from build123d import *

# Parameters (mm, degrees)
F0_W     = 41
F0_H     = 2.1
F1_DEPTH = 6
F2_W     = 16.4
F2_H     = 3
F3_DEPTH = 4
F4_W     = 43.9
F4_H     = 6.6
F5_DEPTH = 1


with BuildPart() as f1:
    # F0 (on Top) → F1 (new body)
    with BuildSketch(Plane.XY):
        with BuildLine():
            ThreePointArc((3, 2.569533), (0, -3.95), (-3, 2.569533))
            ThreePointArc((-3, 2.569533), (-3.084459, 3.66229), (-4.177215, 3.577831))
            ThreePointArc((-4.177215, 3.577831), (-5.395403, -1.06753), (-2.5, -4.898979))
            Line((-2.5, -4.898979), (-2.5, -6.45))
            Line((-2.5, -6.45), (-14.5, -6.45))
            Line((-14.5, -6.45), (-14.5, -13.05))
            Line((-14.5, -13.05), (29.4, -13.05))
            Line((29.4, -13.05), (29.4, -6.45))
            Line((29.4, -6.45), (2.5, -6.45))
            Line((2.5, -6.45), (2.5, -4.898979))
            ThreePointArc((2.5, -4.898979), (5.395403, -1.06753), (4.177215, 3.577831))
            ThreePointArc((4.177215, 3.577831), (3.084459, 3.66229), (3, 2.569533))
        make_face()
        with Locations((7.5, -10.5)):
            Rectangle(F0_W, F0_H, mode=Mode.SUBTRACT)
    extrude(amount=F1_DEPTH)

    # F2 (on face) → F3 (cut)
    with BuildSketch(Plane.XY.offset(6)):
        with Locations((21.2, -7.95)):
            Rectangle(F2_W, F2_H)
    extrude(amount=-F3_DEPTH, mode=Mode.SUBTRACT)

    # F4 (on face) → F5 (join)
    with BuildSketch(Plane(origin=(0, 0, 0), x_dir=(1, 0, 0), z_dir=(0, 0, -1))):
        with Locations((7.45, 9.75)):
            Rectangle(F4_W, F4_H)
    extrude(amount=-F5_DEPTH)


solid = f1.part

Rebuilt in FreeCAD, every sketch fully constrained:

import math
import FreeCAD as App
import Part
import Sketcher
Q = App.Units.Quantity


def add_polygon(sketch, points):
    """Adds a closed chain of lines whose ends are joined by coincident constraints."""
    first, n = sketch.GeometryCount, len(points)
    for a, b in zip(points, points[1:] + points[:1]):
        sketch.addGeometry(Part.LineSegment(App.Vector(*a, 0), App.Vector(*b, 0)), False)
    for i in range(n):
        sketch.addConstraint(Sketcher.Constraint("Coincident", first + i, 2, first + (i + 1) % n, 1))

doc = App.newDocument("Part")
body = doc.addObject("PartDesign::Body", "Body")

# Sketch on XY plane
sketch1 = body.newObject("Sketcher::SketchObject", "Sketch")
sketch1.AttachmentSupport = (doc.getObject("XY_Plane"), [""])
sketch1.MapMode = "FlatFace"
sketch1.addGeometry(Part.ArcOfCircle(Part.Circle(App.Vector(0, 0, 0), App.Vector(0, 0, 1), 3.9), math.radians(139), math.radians(401)), False)  # 0
sketch1.addGeometry(Part.ArcOfCircle(Part.Circle(App.Vector(-3.6, 3.1, 0), App.Vector(0, 0, 1), 0.8), math.radians(-41), math.radians(139)), False)  # 1
sketch1.addGeometry(Part.ArcOfCircle(Part.Circle(App.Vector(0, 0, 0), App.Vector(0, 0, 1), 5.5), math.radians(139), math.radians(243)), False)  # 2
sketch1.addGeometry(Part.LineSegment(App.Vector(-2.5, -4.9, 0), App.Vector(-2.5, -6.5, 0)), False)  # 3
sketch1.addGeometry(Part.LineSegment(App.Vector(-2.5, -6.5, 0), App.Vector(-14.5, -6.5, 0)), False)  # 4
sketch1.addGeometry(Part.LineSegment(App.Vector(-14.5, -6.5, 0), App.Vector(-14.5, -13.1, 0)), False)  # 5
sketch1.addGeometry(Part.LineSegment(App.Vector(-14.5, -13.1, 0), App.Vector(29.4, -13.1, 0)), False)  # 6
sketch1.addGeometry(Part.LineSegment(App.Vector(29.4, -13.1, 0), App.Vector(29.4, -6.5, 0)), False)  # 7
sketch1.addGeometry(Part.LineSegment(App.Vector(29.4, -6.5, 0), App.Vector(2.5, -6.5, 0)), False)  # 8
sketch1.addGeometry(Part.LineSegment(App.Vector(2.5, -6.5, 0), App.Vector(2.5, -4.9, 0)), False)  # 9
sketch1.addGeometry(Part.ArcOfCircle(Part.Circle(App.Vector(0, 0, 0), App.Vector(0, 0, 1), 5.5), math.radians(-63), math.radians(41)), False)  # 10
sketch1.addGeometry(Part.ArcOfCircle(Part.Circle(App.Vector(3.6, 3.1, 0), App.Vector(0, 0, 1), 0.8), math.radians(41), math.radians(221)), False)  # 11
add_polygon(sketch1, [(28, -11.6), (-13, -11.6), (-13, -9.4), (28, -9.4)])  # lines 12-15
sketch1.addConstraint([
    Sketcher.Constraint("Tangent", 0, 1, 1, 1),
    Sketcher.Constraint("Tangent", 1, 2, 2, 1),
    Sketcher.Constraint("Coincident", 2, 2, 3, 1),
    Sketcher.Constraint("Coincident", 3, 2, 4, 1),
    Sketcher.Constraint("Coincident", 4, 2, 5, 1),
    Sketcher.Constraint("Coincident", 5, 2, 6, 1),
    Sketcher.Constraint("Coincident", 6, 2, 7, 1),
    Sketcher.Constraint("Coincident", 7, 2, 8, 1),
    Sketcher.Constraint("Coincident", 8, 2, 9, 1),
    Sketcher.Constraint("Coincident", 9, 2, 10, 1),
    Sketcher.Constraint("Tangent", 10, 2, 11, 1),
    Sketcher.Constraint("Tangent", 11, 2, 0, 2),
    Sketcher.Constraint("Vertical", 3),
    Sketcher.Constraint("Horizontal", 4),
    Sketcher.Constraint("Vertical", 5),
    Sketcher.Constraint("Horizontal", 6),
    Sketcher.Constraint("Vertical", 7),
    Sketcher.Constraint("Horizontal", 8),
    Sketcher.Constraint("Vertical", 9),
    Sketcher.Constraint("Horizontal", 12),
    Sketcher.Constraint("Vertical", 13),
    Sketcher.Constraint("Horizontal", 14),
    Sketcher.Constraint("Vertical", 15),
    Sketcher.Constraint("Coincident", 0, 3, -1, 1),
    Sketcher.Constraint("Coincident", 2, 3, -1, 1),
    Sketcher.Constraint("Coincident", 10, 3, -1, 1),
    Sketcher.Constraint("Equal", 2, 10),
    Sketcher.Constraint("Symmetric", 3, 2, 8, 2, -2),
    Sketcher.Constraint("Horizontal", 1, 3, 11, 3),
    Sketcher.Constraint("Radius", 2, Q("5.5 mm")),
    Sketcher.Constraint("DistanceX", 4, 2, 4, 1, Q("12 mm")),
    Sketcher.Constraint("DistanceX", 12, 2, 12, 1, Q("41 mm")),
    Sketcher.Constraint("Radius", 0, Q("3.95 mm")),
    Sketcher.Constraint("DistanceX", 6, 1, 6, 2, Q("43.9 mm")),
    Sketcher.Constraint("DistanceX", 8, 2, 8, 1, Q("26.9 mm")),
    Sketcher.Constraint("DistanceY", 5, 2, 5, 1, Q("6.6 mm")),
    Sketcher.Constraint("DistanceY", 13, 1, 13, 2, Q("2.1 mm")),
    Sketcher.Constraint("DistanceX", 0, 1, -1, 1, Q("3 mm")),
    Sketcher.Constraint("DistanceX", 12, 2, -1, 1, Q("13 mm")),
    Sketcher.Constraint("DistanceY", 13, 2, 4, 2, Q("3 mm")),
    Sketcher.Constraint("DistanceY", 3, 2, -1, 1, Q("6.45 mm")),
])
pad1 = body.newObject("PartDesign::Pad", "Pad")
pad1.Profile = sketch1
pad1.Length = 6

# Sketch on XY plane
sketch2 = body.newObject("Sketcher::SketchObject", "Sketch001")
sketch2.AttachmentSupport = (doc.getObject("XY_Plane"), [""])
sketch2.MapMode = "FlatFace"
sketch2.AttachmentOffset = App.Placement(App.Vector(0, 0, 6), App.Rotation())
add_polygon(sketch2, [(13, -6.5), (13, -9.4), (29.4, -9.4), (29.4, -6.5)])  # lines 0-3
sketch2.addConstraint([
    Sketcher.Constraint("Vertical", 0),
    Sketcher.Constraint("Horizontal", 1),
    Sketcher.Constraint("Vertical", 2),
    Sketcher.Constraint("Horizontal", 3),
    Sketcher.Constraint("DistanceY", 0, 2, 0, 1, Q("3 mm")),
    Sketcher.Constraint("DistanceX", 1, 1, 1, 2, Q("16.4 mm")),
    Sketcher.Constraint("DistanceX", -1, 1, 0, 2, Q("13 mm")),
    Sketcher.Constraint("DistanceY", 0, 2, -1, 1, Q("9.45 mm")),
])
pocket1 = body.newObject("PartDesign::Pocket", "Pocket")
pocket1.Profile = sketch2
pocket1.Length = 4

# Sketch on XY plane
sketch3 = body.newObject("Sketcher::SketchObject", "Sketch002")
sketch3.AttachmentSupport = (doc.getObject("XY_Plane"), [""])
sketch3.MapMode = "FlatFace"
add_polygon(sketch3, [(-14, -13), (-14, -6), (29, -6), (29, -13)])  # lines 0-3
sketch3.addConstraint([
    Sketcher.Constraint("Vertical", 0),
    Sketcher.Constraint("Horizontal", 1),
    Sketcher.Constraint("Vertical", 2),
    Sketcher.Constraint("Horizontal", 3),
    Sketcher.Constraint("DistanceX", 1, 1, 1, 2, Q("43.9 mm")),
    Sketcher.Constraint("DistanceY", 0, 1, 0, 2, Q("6.6 mm")),
    Sketcher.Constraint("DistanceX", 0, 2, -1, 1, Q("14.5 mm")),
    Sketcher.Constraint("DistanceY", 0, 2, -1, 1, Q("6.45 mm")),
])
pad2 = body.newObject("PartDesign::Pad", "Pad001")
pad2.Profile = sketch3
pad2.Length = 1

doc.recompute()
